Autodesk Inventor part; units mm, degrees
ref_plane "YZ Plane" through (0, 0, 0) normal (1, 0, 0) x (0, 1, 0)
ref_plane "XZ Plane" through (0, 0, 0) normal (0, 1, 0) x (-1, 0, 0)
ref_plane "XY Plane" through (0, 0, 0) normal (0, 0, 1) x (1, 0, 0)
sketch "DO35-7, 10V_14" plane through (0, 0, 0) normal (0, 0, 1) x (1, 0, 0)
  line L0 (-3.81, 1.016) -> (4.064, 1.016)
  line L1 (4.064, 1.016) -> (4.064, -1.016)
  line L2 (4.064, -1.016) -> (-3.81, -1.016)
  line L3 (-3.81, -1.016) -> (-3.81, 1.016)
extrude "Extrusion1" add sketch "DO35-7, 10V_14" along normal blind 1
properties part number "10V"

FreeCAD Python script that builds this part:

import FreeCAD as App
import Part
import Sketcher
from FreeCAD import Vector
Q = App.Units.Quantity

doc = App.newDocument("Part")
params = doc.addObject("Spreadsheet::Sheet", "Params")
for row, (alias, value) in enumerate([
    ("sketch1_width", "0.31 in"),
    ("sketch1_height", "0.08 in"),
    ("pad1_length", "1 mm"),
], start=1):
    params.set(f"A{row}", alias)
    params.set(f"B{row}", "=" + value)
    params.setAlias(f"B{row}", alias)

body = doc.addObject("PartDesign::Body", "Body")

# Sketch on XY plane
sketch1 = body.newObject("Sketcher::SketchObject", "Sketch")
sketch1.AttachmentSupport = (doc.getObject("XY_Plane"), [""])
sketch1.MapMode = "FlatFace"
sketch1.addGeometry([
    Part.LineSegment(Vector(4.064, 1.016, 0), Vector(-3.81, 1.016, 0)),
    Part.LineSegment(Vector(-3.81, 1.016, 0), Vector(-3.81, -1.016, 0)),
    Part.LineSegment(Vector(-3.81, -1.016, 0), Vector(4.064, -1.016, 0)),
    Part.LineSegment(Vector(4.064, -1.016, 0), Vector(4.064, 1.016, 0)),
], False)
sketch1.addConstraint([
    Sketcher.Constraint("Coincident", 0, 2, 1, 1),
    Sketcher.Constraint("Coincident", 1, 2, 2, 1),
    Sketcher.Constraint("Coincident", 2, 2, 3, 1),
    Sketcher.Constraint("Coincident", 3, 2, 0, 1),
    Sketcher.Constraint("Horizontal", 0),
    Sketcher.Constraint("Vertical", 1),
    Sketcher.Constraint("Horizontal", 2),
    Sketcher.Constraint("Vertical", 3),
    Sketcher.Constraint("DistanceX", 0, 2, 0, 1, Q("0.31 in")),
    Sketcher.Constraint("DistanceY", 1, 2, 1, 1, Q("0.08 in")),
    Sketcher.Constraint("DistanceX", 0, 2, -1, 1, Q("0.15 in")),
    Sketcher.Constraint("DistanceY", -1, 1, 0, 2, Q("0.04 in")),
])
sketch1.setExpression("Constraints[8]", "Params.sketch1_width")
sketch1.setExpression("Constraints[9]", "Params.sketch1_height")
pad1 = body.newObject("PartDesign::Pad", "Pad")
pad1.Profile = sketch1
pad1.setExpression("Length", "Params.pad1_length")

doc.recompute()
